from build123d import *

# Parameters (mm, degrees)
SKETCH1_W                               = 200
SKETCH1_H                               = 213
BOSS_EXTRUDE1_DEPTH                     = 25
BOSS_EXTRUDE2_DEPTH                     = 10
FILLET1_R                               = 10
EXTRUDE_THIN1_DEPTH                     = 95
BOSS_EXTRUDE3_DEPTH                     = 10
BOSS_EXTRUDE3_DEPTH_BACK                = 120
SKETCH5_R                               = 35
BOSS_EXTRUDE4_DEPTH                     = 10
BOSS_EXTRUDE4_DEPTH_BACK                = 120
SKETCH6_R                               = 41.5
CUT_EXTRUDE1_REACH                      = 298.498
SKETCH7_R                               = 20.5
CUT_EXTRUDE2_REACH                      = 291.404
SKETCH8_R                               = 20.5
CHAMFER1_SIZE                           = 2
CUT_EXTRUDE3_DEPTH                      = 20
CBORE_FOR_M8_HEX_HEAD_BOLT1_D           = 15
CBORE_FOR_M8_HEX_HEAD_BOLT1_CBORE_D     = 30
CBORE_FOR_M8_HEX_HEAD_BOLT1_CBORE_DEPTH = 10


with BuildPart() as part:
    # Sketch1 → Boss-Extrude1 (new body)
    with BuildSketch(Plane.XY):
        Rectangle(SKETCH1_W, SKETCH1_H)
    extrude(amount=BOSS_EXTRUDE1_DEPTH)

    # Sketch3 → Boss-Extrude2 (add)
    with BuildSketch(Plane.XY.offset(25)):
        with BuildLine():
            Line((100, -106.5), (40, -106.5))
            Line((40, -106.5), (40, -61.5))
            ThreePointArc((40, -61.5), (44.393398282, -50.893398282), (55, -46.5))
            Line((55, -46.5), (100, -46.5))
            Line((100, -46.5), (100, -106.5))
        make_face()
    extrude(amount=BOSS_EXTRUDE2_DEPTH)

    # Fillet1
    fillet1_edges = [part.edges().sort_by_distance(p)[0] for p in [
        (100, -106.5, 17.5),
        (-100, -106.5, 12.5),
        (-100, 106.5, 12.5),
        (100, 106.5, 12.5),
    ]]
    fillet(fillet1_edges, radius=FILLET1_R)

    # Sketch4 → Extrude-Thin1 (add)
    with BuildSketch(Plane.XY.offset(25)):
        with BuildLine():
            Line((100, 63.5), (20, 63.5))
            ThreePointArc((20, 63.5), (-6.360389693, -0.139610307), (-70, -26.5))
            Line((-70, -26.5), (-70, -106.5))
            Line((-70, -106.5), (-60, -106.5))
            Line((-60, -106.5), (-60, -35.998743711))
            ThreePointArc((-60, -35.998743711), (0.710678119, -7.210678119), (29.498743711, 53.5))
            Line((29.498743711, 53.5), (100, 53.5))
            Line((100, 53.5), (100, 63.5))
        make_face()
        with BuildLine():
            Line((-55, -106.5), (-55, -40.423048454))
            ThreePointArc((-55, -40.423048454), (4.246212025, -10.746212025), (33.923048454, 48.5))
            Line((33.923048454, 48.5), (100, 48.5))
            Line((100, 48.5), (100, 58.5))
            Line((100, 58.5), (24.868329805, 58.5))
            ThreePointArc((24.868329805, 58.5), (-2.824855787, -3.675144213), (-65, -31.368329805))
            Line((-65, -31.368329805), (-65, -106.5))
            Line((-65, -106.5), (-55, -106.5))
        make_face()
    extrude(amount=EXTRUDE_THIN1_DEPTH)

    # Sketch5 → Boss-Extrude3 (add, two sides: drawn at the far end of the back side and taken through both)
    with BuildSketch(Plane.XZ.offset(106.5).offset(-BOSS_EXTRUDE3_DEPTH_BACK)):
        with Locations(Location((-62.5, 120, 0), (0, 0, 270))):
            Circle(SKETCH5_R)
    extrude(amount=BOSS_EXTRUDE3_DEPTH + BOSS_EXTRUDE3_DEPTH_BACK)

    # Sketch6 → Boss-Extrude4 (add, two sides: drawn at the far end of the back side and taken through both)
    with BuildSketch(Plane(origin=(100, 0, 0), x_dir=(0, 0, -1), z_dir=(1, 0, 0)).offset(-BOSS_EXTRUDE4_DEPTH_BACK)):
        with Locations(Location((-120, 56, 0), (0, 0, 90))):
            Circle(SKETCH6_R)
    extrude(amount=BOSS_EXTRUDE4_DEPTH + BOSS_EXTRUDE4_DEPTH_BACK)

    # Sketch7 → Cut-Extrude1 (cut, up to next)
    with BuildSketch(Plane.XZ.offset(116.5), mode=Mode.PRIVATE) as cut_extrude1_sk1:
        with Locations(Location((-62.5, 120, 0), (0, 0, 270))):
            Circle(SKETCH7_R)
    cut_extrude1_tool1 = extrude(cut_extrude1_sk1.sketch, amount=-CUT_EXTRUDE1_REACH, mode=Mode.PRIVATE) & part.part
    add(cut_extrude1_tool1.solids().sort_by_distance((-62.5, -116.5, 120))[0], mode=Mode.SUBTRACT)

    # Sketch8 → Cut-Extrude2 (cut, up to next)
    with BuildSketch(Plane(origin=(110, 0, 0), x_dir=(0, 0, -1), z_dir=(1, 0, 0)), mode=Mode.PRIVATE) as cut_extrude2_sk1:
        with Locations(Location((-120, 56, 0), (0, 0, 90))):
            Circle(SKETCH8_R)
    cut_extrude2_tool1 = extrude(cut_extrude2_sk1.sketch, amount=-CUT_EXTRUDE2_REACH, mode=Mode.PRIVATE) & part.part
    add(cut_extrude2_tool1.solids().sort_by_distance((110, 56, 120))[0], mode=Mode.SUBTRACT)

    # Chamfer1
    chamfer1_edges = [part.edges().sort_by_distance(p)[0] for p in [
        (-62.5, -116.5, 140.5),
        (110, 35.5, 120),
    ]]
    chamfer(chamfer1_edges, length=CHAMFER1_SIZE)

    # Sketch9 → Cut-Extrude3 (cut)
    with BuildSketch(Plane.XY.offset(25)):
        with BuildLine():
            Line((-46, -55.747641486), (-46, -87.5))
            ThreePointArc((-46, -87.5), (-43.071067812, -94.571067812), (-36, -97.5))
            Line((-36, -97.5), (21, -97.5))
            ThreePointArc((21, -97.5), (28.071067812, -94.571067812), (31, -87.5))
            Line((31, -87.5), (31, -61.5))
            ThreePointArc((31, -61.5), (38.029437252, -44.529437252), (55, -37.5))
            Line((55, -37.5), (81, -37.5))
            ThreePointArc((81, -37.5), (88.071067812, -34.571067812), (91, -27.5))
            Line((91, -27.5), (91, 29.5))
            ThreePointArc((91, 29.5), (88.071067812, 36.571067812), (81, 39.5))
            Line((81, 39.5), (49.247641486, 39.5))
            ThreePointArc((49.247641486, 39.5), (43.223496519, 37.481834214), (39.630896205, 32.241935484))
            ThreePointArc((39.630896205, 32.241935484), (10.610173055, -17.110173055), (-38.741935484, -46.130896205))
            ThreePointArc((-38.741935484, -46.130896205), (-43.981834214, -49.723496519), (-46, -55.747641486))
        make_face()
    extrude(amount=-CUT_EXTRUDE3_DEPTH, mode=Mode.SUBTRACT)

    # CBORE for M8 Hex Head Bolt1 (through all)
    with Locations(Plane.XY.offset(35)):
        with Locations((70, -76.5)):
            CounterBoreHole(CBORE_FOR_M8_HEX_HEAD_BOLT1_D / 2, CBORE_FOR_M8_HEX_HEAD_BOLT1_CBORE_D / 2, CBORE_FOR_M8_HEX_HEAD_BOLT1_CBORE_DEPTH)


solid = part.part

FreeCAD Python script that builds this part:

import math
import FreeCAD as App
import Part
import Sketcher
from FreeCAD import Vector
Q = App.Units.Quantity


def edges_at(feature, points):
    """Names of the edges that pass closest to the given points."""
    edges = feature.Shape.Edges
    near = lambda p: min(range(len(edges)), key=lambda i: edges[i].distToShape(Part.Vertex(*p))[0])
    return sorted({f"Edge{near(p) + 1}" for p in points})

doc = App.newDocument("Part")
body = doc.addObject("PartDesign::Body", "Body")

# Sketch on XY plane
sketch1 = body.newObject("Sketcher::SketchObject", "Sketch")
sketch1.AttachmentSupport = (doc.getObject("XY_Plane"), [""])
sketch1.MapMode = "FlatFace"
sketch1.addGeometry([
    Part.LineSegment(Vector(-100, 106.5, 0), Vector(-100, -106.5, 0)),
    Part.LineSegment(Vector(-100, -106.5, 0), Vector(100, -106.5, 0)),
    Part.LineSegment(Vector(100, -106.5, 0), Vector(100, 106.5, 0)),
    Part.LineSegment(Vector(100, 106.5, 0), Vector(-100, 106.5, 0)),
], False)
sketch1.addConstraint([
    Sketcher.Constraint("Coincident", 0, 2, 1, 1),
    Sketcher.Constraint("Coincident", 1, 2, 2, 1),
    Sketcher.Constraint("Coincident", 2, 2, 3, 1),
    Sketcher.Constraint("Coincident", 3, 2, 0, 1),
    Sketcher.Constraint("Vertical", 0),
    Sketcher.Constraint("Horizontal", 1),
    Sketcher.Constraint("Vertical", 2),
    Sketcher.Constraint("Horizontal", 3),
    Sketcher.Constraint("Symmetric", 0, 2, 2, 2, -1, 1),
    Sketcher.Constraint("DistanceX", 1, 1, 1, 2, Q("200 mm")),
    Sketcher.Constraint("DistanceY", 0, 2, 0, 1, Q("213 mm")),
])
pad1 = body.newObject("PartDesign::Pad", "Pad")
pad1.Profile = sketch1
pad1.Length = 25

# Sketch on XY plane
sketch2 = body.newObject("Sketcher::SketchObject", "Sketch001")
sketch2.AttachmentSupport = (doc.getObject("XY_Plane"), [""])
sketch2.MapMode = "FlatFace"
sketch2.AttachmentOffset = App.Placement(Vector(0, 0, 25), App.Rotation())
sketch2.addGeometry([
    Part.LineSegment(Vector(40, -106.5, 0), Vector(100, -106.5, 0)),  # 0
    Part.LineSegment(Vector(100, -106.5, 0), Vector(100, -46.5, 0)),  # 1
    Part.LineSegment(Vector(100, -46.5, 0), Vector(55, -46.5, 0)),  # 2
    Part.ArcOfCircle(Part.Circle(Vector(55, -61.5, 0), Vector(0, 0, 1), 15), math.radians(90), math.radians(180)),  # 3
    Part.LineSegment(Vector(40, -61.5, 0), Vector(40, -106.5, 0)),  # 4
], False)
sketch2.addConstraint([
    Sketcher.Constraint("Coincident", 0, 2, 1, 1),
    Sketcher.Constraint("Coincident", 1, 2, 2, 1),
    Sketcher.Constraint("Tangent", 2, 2, 3, 1),
    Sketcher.Constraint("Tangent", 3, 2, 4, 1),
    Sketcher.Constraint("Coincident", 4, 2, 0, 1),
    Sketcher.Constraint("Horizontal", 0),
    Sketcher.Constraint("Vertical", 1),
    Sketcher.Constraint("Horizontal", 2),
    Sketcher.Constraint("Vertical", 4),
    Sketcher.Constraint("Equal", 0, 1),
    Sketcher.Constraint("Radius", 3, Q("15 mm")),
    Sketcher.Constraint("DistanceX", 0, 1, 0, 2, Q("60 mm")),
    Sketcher.Constraint("DistanceX", -1, 1, 3, 3, Q("55 mm")),
    Sketcher.Constraint("DistanceY", 3, 3, -1, 1, Q("61.5 mm")),
])
pad2 = body.newObject("PartDesign::Pad", "Pad001")
pad2.Profile = sketch2
pad2.Length = 10
doc.recompute()

fillet = body.newObject("PartDesign::Fillet", "Fillet")
fillet.Base = (pad2, edges_at(pad2, [
    (100, -106.5, 17.5),
    (-100, -106.5, 12.5),
    (-100, 106.5, 12.5),
    (100, 106.5, 12.5),
]))
fillet.Radius = 10

# Sketch on XY plane
sketch3 = body.newObject("Sketcher::SketchObject", "Sketch002")
sketch3.AttachmentSupport = (doc.getObject("XY_Plane"), [""])
sketch3.MapMode = "FlatFace"
sketch3.AttachmentOffset = App.Placement(Vector(0, 0, 25), App.Rotation())
sketch3.addGeometry([
    Part.LineSegment(Vector(100, 63.5, 0), Vector(20, 63.5, 0)),  # 0
    Part.ArcOfCircle(Part.Circle(Vector(-70, 63.5, 0), Vector(0, 0, 1), 90), math.radians(-90), math.radians(0)),  # 1
    Part.LineSegment(Vector(-70, -26.5, 0), Vector(-70, -106.5, 0)),  # 2
    Part.LineSegment(Vector(-70, -106.5, 0), Vector(-55, -106.5, 0)),  # 3
    Part.LineSegment(Vector(-55, -106.5, 0), Vector(-55, -40.423048, 0)),  # 4
    Part.ArcOfCircle(Part.Circle(Vector(-70, 63.5, 0), Vector(0, 0, 1), 105), math.radians(-81.786789), math.radians(-8.213211)),  # 5
    Part.LineSegment(Vector(33.923048, 48.5, 0), Vector(100, 48.5, 0)),  # 6
    Part.LineSegment(Vector(100, 48.5, 0), Vector(100, 63.5, 0)),  # 7
], False)
sketch3.addConstraint([
    Sketcher.Constraint("Coincident", 0, 2, 1, 2),
    Sketcher.Constraint("Coincident", 1, 1, 2, 1),
    Sketcher.Constraint("Coincident", 2, 2, 3, 1),
    Sketcher.Constraint("Coincident", 3, 2, 4, 1),
    Sketcher.Constraint("Coincident", 4, 2, 5, 1),
    Sketcher.Constraint("Coincident", 5, 2, 6, 1),
    Sketcher.Constraint("Coincident", 6, 2, 7, 1),
    Sketcher.Constraint("Coincident", 7, 2, 0, 1),
    Sketcher.Constraint("Horizontal", 0),
    Sketcher.Constraint("Vertical", 2),
    Sketcher.Constraint("Horizontal", 3),
    Sketcher.Constraint("Vertical", 4),
    Sketcher.Constraint("Horizontal", 6),
    Sketcher.Constraint("Vertical", 7),
    Sketcher.Constraint("Coincident", 5, 3, 1, 3),
    Sketcher.Constraint("Horizontal", 5, 3, 0, 2),
    Sketcher.Constraint("Vertical", 5, 3, 1, 1),
    Sketcher.Constraint("Equal", 0, 2),
    Sketcher.Constraint("Equal", 6, 4),
    Sketcher.Constraint("Radius", 1, Q("90 mm")),
    Sketcher.Constraint("Radius", 5, Q("105 mm")),
    Sketcher.Constraint("DistanceX", 0, 2, 0, 1, Q("80 mm")),
    Sketcher.Constraint("DistanceX", 3, 1, 3, 2, Q("15 mm")),
    Sketcher.Constraint("DistanceX", 1, 3, -1, 1, Q("70 mm")),
    Sketcher.Constraint("DistanceY", -1, 1, 1, 3, Q("63.5 mm")),
])
pad3 = body.newObject("PartDesign::Pad", "Pad002")
pad3.Profile = sketch3
pad3.Length = 95

# Sketch on XZ plane
sketch4 = body.newObject("Sketcher::SketchObject", "Sketch003")
sketch4.AttachmentSupport = (doc.getObject("XZ_Plane"), [""])
sketch4.MapMode = "FlatFace"
sketch4.AttachmentOffset = App.Placement(Vector(0, 0, 106.5), App.Rotation())
sketch4.addGeometry(Part.Circle(Vector(-62.5, 120, 0), Vector(0, 0, 1), 35), False)
sketch4.addConstraint([
    Sketcher.Constraint("Diameter", 0, Q("70 mm")),
    Sketcher.Constraint("DistanceY", -1, 1, 0, 3, Q("120 mm")),
    Sketcher.Constraint("DistanceX", 0, 3, -1, 1, Q("62.5 mm")),
])
pad4 = body.newObject("PartDesign::Pad", "Pad003")
pad4.Profile = sketch4
pad4.Type = "TwoLengths"
pad4.Length = 10
pad4.Length2 = 120

# Sketch on YZ plane
sketch5 = body.newObject("Sketcher::SketchObject", "Sketch004")
sketch5.AttachmentSupport = (doc.getObject("YZ_Plane"), [""])
sketch5.MapMode = "FlatFace"
sketch5.AttachmentOffset = App.Placement(Vector(0, 0, 100), App.Rotation())
sketch5.addGeometry(Part.Circle(Vector(56, 120, 0), Vector(0, 0, 1), 41.5), False)
sketch5.addConstraint([
    Sketcher.Constraint("Diameter", 0, Q("83 mm")),
    Sketcher.Constraint("DistanceX", -1, 1, 0, 3, Q("56 mm")),
    Sketcher.Constraint("DistanceY", -1, 1, 0, 3, Q("120 mm")),
])
pad5 = body.newObject("PartDesign::Pad", "Pad004")
pad5.Profile = sketch5
pad5.Type = "TwoLengths"
pad5.Length = 10
pad5.Length2 = 120

# Sketch on XZ plane
sketch6 = body.newObject("Sketcher::SketchObject", "Sketch005")
sketch6.AttachmentSupport = (doc.getObject("XZ_Plane"), [""])
sketch6.MapMode = "FlatFace"
sketch6.AttachmentOffset = App.Placement(Vector(0, 0, 116.5), App.Rotation())
sketch6.addGeometry(Part.Circle(Vector(-62.5, 120, 0), Vector(0, 0, 1), 20.5), False)
sketch6.addConstraint([
    Sketcher.Constraint("Diameter", 0, Q("41 mm")),
    Sketcher.Constraint("DistanceY", -1, 1, 0, 3, Q("120 mm")),
    Sketcher.Constraint("DistanceX", 0, 3, -1, 1, Q("62.5 mm")),
])
pocket1 = body.newObject("PartDesign::Pocket", "Pocket")
pocket1.Profile = sketch6
pocket1.Type = "UpToFirst"

# Sketch on YZ plane
sketch7 = body.newObject("Sketcher::SketchObject", "Sketch006")
sketch7.AttachmentSupport = (doc.getObject("YZ_Plane"), [""])
sketch7.MapMode = "FlatFace"
sketch7.AttachmentOffset = App.Placement(Vector(0, 0, 110), App.Rotation())
sketch7.addGeometry(Part.Circle(Vector(56, 120, 0), Vector(0, 0, 1), 20.5), False)
sketch7.addConstraint([
    Sketcher.Constraint("Diameter", 0, Q("41 mm")),
    Sketcher.Constraint("DistanceX", -1, 1, 0, 3, Q("56 mm")),
    Sketcher.Constraint("DistanceY", -1, 1, 0, 3, Q("120 mm")),
])
pocket2 = body.newObject("PartDesign::Pocket", "Pocket001")
pocket2.Profile = sketch7
pocket2.Type = "UpToFirst"
doc.recompute()

chamfer = body.newObject("PartDesign::Chamfer", "Chamfer")
chamfer.Base = (pocket2, edges_at(pocket2, [(-62.5, -116.5, 140.5), (110, 35.5, 120)]))
chamfer.Size = 2

# Sketch on XY plane
sketch8 = body.newObject("Sketcher::SketchObject", "Sketch007")
sketch8.AttachmentSupport = (doc.getObject("XY_Plane"), [""])
sketch8.MapMode = "FlatFace"
sketch8.AttachmentOffset = App.Placement(Vector(0, 0, 25), App.Rotation())
sketch8.addGeometry([
    Part.LineSegment(Vector(-46, -55.747641, 0), Vector(-46, -87.5, 0)),  # 0
    Part.ArcOfCircle(Part.Circle(Vector(-36, -87.5, 0), Vector(0, 0, 1), 10), math.radians(180), math.radians(270)),  # 1
    Part.LineSegment(Vector(-36, -97.5, 0), Vector(21, -97.5, 0)),  # 2
    Part.ArcOfCircle(Part.Circle(Vector(21, -87.5, 0), Vector(0, 0, 1), 10), math.radians(-90), math.radians(0)),  # 3
    Part.LineSegment(Vector(31, -87.5, 0), Vector(31, -61.5, 0)),  # 4
    Part.ArcOfCircle(Part.Circle(Vector(55, -61.5, 0), Vector(0, 0, 1), 24), math.radians(90), math.radians(180)),  # 5
    Part.LineSegment(Vector(55, -37.5, 0), Vector(81, -37.5, 0)),  # 6
    Part.ArcOfCircle(Part.Circle(Vector(81, -27.5, 0), Vector(0, 0, 1), 10), math.radians(-90), math.radians(0)),  # 7
    Part.LineSegment(Vector(91, -27.5, 0), Vector(91, 29.5, 0)),  # 8
    Part.ArcOfCircle(Part.Circle(Vector(81, 29.5, 0), Vector(0, 0, 1), 10), math.radians(0), math.radians(90)),  # 9
    Part.LineSegment(Vector(81, 39.5, 0), Vector(49.247641, 39.5, 0)),  # 10
    Part.ArcOfCircle(Part.Circle(Vector(49.247641, 29.5, 0), Vector(0, 0, 1), 10), math.radians(90), math.radians(164.086039)),  # 11
    Part.ArcOfCircle(Part.Circle(Vector(-70, 63.5, 0), Vector(0, 0, 1), 114), math.radians(-74.086039), math.radians(-15.913961)),  # 12
    Part.ArcOfCircle(Part.Circle(Vector(-36, -55.747641, 0), Vector(0, 0, 1), 10), math.radians(105.913961), math.radians(180)),  # 13
], False)
sketch8.addConstraint([
    Sketcher.Constraint("Tangent", 0, 2, 1, 1),
    Sketcher.Constraint("Tangent", 1, 2, 2, 1),
    Sketcher.Constraint("Tangent", 2, 2, 3, 1),
    Sketcher.Constraint("Tangent", 3, 2, 4, 1),
    Sketcher.Constraint("Tangent", 4, 2, 5, 2),
    Sketcher.Constraint("Tangent", 5, 1, 6, 1),
    Sketcher.Constraint("Tangent", 6, 2, 7, 1),
    Sketcher.Constraint("Tangent", 7, 2, 8, 1),
    Sketcher.Constraint("Tangent", 8, 2, 9, 1),
    Sketcher.Constraint("Tangent", 9, 2, 10, 1),
    Sketcher.Constraint("Tangent", 10, 2, 11, 1),
    Sketcher.Constraint("Tangent", 11, 2, 12, 2),
    Sketcher.Constraint("Tangent", 12, 1, 13, 1),
    Sketcher.Constraint("Tangent", 13, 2, 0, 1),
    Sketcher.Constraint("Vertical", 0),
    Sketcher.Constraint("Horizontal", 2),
    Sketcher.Constraint("Vertical", 4),
    Sketcher.Constraint("Horizontal", 6),
    Sketcher.Constraint("Vertical", 8),
    Sketcher.Constraint("Horizontal", 10),
    Sketcher.Constraint("Equal", 1, 3),
    Sketcher.Constraint("Equal", 3, 7),
    Sketcher.Constraint("Equal", 7, 9),
    Sketcher.Constraint("Equal", 9, 11),
    Sketcher.Constraint("Equal", 11, 13),
    Sketcher.Constraint("Equal", 10, 0),
    Sketcher.Constraint("Equal", 6, 4),
    Sketcher.Constraint("Equal", 2, 8),
    Sketcher.Constraint("Radius", 1, Q("10 mm")),
    Sketcher.Constraint("Radius", 5, Q("24 mm")),
    Sketcher.Constraint("Radius", 12, Q("114 mm")),
    Sketcher.Constraint("DistanceX", 2, 1, 2, 2, Q("57 mm")),
    Sketcher.Constraint("DistanceX", 6, 1, 6, 2, Q("26 mm")),
    Sketcher.Constraint("DistanceX", 1, 3, -1, 1, Q("36 mm")),
    Sketcher.Constraint("DistanceX", 12, 3, -1, 1, Q("70 mm")),
    Sketcher.Constraint("DistanceY", 1, 3, -1, 1, Q("87.5 mm")),
])
pocket3 = body.newObject("PartDesign::Pocket", "Pocket002")
pocket3.Profile = sketch8
pocket3.Length = 20

# Sketch on XY plane
sketch9 = body.newObject("Sketcher::SketchObject", "Sketch008")
sketch9.AttachmentSupport = (doc.getObject("XY_Plane"), [""])
sketch9.MapMode = "FlatFace"
sketch9.AttachmentOffset = App.Placement(Vector(0, 0, 35), App.Rotation())
sketch9.addGeometry(Part.Circle(Vector(70, -76.5, 0), Vector(0, 0, 1), 7.5), False)
sketch9.addConstraint([
    Sketcher.Constraint("Diameter", 0, Q("15 mm")),
    Sketcher.Constraint("DistanceX", -1, 1, 0, 3, Q("70 mm")),
    Sketcher.Constraint("DistanceY", 0, 3, -1, 1, Q("76.5 mm")),
])
doc.recompute()
hole = body.newObject("PartDesign::Hole", "Hole")
hole.Profile = sketch9
hole.ThreadType = "None"
hole.Diameter = 15
hole.DepthType = "ThroughAll"
hole.HoleCutType = "Counterbore"
hole.HoleCutDiameter = 30
hole.HoleCutDepth = 10

doc.recompute()
